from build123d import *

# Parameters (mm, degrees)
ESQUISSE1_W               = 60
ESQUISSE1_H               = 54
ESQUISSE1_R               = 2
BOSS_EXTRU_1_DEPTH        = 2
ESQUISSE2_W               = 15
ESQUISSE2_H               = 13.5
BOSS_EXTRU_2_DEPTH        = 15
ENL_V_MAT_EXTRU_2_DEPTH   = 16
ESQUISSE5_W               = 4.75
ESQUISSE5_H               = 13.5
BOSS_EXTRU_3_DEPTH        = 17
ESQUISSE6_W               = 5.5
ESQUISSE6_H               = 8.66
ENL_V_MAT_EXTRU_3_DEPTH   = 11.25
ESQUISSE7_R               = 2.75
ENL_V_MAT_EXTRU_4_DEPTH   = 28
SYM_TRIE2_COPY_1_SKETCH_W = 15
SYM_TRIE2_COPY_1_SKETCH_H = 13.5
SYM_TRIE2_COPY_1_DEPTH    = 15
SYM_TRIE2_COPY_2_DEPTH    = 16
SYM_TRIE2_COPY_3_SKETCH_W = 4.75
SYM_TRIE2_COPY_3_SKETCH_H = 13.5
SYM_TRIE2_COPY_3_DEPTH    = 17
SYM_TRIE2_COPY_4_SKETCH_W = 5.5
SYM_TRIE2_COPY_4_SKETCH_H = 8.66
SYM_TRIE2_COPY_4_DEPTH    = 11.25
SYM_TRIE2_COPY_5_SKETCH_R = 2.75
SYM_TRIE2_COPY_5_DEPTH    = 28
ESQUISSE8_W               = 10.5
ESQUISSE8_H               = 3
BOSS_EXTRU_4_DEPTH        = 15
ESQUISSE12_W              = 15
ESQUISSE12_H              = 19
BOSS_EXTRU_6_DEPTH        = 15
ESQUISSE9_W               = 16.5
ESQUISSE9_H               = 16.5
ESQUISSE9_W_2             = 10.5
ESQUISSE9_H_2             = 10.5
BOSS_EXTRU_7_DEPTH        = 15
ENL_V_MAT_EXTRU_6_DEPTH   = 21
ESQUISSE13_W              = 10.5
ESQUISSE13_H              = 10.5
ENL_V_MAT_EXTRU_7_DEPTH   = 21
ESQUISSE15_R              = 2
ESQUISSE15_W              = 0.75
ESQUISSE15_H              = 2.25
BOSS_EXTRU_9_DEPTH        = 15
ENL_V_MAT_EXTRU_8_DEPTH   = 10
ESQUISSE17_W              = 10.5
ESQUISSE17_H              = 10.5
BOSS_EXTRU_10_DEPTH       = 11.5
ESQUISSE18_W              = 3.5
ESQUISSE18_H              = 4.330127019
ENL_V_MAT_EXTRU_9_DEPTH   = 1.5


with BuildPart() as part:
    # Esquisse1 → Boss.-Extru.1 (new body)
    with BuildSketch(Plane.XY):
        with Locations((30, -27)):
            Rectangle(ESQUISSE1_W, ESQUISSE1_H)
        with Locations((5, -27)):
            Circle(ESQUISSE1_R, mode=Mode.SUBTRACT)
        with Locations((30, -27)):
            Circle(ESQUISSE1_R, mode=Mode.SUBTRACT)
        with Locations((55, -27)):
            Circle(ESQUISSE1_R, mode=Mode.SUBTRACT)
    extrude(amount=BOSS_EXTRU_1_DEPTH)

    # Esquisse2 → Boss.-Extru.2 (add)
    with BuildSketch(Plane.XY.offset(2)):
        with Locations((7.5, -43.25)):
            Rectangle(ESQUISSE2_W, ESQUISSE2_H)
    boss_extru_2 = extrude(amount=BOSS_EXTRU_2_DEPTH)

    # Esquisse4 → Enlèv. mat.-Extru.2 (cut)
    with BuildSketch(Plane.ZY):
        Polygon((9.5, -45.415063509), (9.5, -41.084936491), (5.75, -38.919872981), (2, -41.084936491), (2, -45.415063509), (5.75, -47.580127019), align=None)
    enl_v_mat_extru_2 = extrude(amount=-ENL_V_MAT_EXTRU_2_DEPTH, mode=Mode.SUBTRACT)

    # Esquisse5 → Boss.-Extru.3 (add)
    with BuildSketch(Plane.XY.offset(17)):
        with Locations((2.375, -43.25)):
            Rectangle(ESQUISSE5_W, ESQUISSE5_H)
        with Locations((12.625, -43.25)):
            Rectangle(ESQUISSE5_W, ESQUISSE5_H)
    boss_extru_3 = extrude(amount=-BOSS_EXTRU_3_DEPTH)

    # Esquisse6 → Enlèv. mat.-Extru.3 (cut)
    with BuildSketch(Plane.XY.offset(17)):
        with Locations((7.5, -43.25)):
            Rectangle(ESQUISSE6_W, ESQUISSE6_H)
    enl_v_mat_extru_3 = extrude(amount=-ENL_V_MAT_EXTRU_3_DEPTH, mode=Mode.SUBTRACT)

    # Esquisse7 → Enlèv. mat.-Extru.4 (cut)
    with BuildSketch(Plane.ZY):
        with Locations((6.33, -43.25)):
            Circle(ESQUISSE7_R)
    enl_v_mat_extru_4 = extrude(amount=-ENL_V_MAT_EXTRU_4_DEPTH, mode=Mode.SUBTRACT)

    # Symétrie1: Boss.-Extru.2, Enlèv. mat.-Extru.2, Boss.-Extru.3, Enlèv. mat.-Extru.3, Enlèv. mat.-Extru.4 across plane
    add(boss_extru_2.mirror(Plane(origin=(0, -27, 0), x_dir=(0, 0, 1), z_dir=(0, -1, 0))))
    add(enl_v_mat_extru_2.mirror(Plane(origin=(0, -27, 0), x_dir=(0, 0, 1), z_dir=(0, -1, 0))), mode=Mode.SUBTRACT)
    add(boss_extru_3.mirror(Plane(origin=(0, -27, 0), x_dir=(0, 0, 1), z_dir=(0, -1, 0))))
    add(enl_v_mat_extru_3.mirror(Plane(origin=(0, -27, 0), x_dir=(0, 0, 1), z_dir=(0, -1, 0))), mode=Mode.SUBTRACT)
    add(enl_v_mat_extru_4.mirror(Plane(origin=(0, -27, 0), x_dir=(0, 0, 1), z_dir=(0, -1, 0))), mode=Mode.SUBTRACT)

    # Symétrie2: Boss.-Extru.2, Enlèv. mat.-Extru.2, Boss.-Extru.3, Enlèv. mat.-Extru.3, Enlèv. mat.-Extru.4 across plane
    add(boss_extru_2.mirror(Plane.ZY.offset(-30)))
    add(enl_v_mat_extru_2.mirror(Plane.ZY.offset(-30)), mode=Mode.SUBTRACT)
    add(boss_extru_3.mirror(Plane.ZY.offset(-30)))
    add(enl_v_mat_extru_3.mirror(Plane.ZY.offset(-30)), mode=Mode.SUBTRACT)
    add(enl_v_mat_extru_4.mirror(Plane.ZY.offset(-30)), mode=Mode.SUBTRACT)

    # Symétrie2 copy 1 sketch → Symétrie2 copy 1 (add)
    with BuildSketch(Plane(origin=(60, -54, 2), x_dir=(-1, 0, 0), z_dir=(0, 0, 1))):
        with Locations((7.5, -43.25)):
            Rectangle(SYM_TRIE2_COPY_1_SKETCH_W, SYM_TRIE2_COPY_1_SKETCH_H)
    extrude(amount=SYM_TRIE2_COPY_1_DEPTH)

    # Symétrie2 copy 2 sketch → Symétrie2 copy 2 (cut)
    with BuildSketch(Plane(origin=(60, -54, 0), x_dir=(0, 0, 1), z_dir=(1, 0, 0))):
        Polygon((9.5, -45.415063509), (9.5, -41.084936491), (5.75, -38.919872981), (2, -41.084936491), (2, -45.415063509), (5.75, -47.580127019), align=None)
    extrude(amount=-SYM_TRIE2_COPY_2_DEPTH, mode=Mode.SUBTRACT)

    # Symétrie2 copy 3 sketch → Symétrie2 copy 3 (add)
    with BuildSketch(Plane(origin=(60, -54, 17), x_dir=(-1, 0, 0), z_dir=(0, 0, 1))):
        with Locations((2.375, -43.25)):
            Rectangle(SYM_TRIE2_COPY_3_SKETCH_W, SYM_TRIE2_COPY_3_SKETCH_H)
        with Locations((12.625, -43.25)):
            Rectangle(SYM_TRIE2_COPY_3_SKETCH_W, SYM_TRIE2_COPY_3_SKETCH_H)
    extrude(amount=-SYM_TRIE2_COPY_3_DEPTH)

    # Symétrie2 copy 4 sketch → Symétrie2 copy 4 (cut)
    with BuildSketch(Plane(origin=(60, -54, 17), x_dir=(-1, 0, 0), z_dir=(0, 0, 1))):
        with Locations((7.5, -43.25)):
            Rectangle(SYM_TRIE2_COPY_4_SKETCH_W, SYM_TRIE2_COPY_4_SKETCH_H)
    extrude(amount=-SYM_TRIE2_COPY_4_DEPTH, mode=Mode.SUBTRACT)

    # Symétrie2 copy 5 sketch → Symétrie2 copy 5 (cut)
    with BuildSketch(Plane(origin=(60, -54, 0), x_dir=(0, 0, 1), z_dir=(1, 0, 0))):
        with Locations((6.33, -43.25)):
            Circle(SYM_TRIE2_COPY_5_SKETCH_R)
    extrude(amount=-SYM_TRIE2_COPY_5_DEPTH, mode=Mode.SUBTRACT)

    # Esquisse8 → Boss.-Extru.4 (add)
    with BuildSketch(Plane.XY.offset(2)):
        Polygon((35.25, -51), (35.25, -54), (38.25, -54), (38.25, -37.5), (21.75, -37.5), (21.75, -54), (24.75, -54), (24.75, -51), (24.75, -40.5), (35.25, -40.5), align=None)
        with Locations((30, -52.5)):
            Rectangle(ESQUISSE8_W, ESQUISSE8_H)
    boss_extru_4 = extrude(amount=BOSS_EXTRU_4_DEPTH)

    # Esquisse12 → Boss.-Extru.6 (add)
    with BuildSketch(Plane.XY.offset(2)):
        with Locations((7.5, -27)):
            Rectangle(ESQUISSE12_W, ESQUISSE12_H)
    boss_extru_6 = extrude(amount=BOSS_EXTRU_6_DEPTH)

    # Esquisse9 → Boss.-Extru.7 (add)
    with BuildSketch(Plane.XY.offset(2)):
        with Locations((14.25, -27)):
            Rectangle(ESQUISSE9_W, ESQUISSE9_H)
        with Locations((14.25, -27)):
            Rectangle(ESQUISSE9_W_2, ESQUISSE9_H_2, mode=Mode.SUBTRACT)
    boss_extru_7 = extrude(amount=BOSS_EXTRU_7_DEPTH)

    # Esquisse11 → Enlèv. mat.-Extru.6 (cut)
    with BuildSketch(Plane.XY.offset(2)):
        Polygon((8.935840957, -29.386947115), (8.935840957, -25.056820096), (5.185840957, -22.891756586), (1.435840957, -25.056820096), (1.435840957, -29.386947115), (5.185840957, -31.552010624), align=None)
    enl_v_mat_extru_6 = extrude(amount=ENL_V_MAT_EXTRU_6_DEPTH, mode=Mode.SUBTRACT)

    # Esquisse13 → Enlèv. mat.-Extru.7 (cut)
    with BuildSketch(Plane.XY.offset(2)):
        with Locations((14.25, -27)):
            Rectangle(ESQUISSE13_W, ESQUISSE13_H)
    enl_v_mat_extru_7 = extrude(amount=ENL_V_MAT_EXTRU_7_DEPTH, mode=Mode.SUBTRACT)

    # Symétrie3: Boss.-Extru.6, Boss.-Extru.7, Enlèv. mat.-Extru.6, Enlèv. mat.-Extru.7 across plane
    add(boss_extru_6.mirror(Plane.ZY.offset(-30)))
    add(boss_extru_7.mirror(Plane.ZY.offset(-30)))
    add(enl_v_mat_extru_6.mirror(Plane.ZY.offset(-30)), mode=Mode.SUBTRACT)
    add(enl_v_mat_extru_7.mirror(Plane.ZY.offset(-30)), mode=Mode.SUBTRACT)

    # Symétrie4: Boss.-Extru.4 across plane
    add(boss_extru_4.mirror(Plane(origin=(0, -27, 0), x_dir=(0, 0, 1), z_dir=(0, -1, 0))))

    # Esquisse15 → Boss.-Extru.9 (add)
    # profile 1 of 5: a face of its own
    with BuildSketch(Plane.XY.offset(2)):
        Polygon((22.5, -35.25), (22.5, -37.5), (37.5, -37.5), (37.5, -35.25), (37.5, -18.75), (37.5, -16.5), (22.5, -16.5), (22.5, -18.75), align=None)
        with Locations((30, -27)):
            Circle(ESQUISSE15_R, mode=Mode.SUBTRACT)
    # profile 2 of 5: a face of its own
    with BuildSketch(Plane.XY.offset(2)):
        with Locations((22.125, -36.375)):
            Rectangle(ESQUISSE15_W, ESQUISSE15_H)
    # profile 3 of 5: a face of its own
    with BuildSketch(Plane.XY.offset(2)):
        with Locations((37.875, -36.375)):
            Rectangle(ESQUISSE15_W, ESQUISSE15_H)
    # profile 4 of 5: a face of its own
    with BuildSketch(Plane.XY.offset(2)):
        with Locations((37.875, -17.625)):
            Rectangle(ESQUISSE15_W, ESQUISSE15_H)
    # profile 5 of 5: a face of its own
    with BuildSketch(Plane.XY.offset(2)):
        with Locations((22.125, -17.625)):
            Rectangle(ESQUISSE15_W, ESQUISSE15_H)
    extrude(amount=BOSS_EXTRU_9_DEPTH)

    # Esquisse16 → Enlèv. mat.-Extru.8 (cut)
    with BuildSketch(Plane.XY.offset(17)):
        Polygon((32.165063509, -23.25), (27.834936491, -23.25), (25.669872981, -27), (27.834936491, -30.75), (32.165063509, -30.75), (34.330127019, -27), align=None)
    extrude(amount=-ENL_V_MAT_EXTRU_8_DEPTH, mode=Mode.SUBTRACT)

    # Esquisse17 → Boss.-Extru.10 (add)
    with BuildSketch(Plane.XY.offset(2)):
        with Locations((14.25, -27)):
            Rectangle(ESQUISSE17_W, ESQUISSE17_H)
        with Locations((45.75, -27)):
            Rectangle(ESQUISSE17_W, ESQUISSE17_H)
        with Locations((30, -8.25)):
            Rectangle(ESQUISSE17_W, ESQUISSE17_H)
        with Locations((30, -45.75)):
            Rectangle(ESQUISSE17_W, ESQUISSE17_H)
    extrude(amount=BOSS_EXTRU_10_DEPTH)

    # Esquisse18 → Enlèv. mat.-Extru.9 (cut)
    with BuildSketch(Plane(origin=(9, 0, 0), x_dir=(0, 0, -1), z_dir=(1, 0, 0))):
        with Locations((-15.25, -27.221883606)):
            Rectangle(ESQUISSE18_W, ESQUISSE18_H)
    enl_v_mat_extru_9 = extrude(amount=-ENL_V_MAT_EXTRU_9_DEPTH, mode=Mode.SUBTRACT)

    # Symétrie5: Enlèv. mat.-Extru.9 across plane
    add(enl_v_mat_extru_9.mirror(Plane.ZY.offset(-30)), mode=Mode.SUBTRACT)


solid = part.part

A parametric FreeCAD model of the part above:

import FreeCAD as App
import Part
import Sketcher
from FreeCAD import Vector
Q = App.Units.Quantity


def add_polygon(sketch, points):
    """Adds a closed chain of lines whose ends are joined by coincident constraints."""
    first, n = sketch.GeometryCount, len(points)
    for a, b in zip(points, points[1:] + points[:1]):
        sketch.addGeometry(Part.LineSegment(App.Vector(*a, 0), App.Vector(*b, 0)), False)
    for i in range(n):
        sketch.addConstraint(Sketcher.Constraint("Coincident", first + i, 2, first + (i + 1) % n, 1))

doc = App.newDocument("Part")
body = doc.addObject("PartDesign::Body", "Body")

sketch1 = doc.addObject("Sketcher::SketchObject", "Sketch")
body.addObject(sketch1)
sketch1.AttachmentSupport = (doc.XY_Plane, [""])
sketch1.MapMode = "FlatFace"
add_polygon(sketch1, [(0, 0), (0, -54), (60, -54), (60, 0)])
sketch1.addGeometry(Part.Circle(Vector(5, -27, 0), Vector(0, 0, 1), 2), False)
sketch1.addGeometry(Part.Circle(Vector(30, -27, 0), Vector(0, 0, 1), 2), False)
sketch1.addGeometry(Part.Circle(Vector(55, -27, 0), Vector(0, 0, 1), 2), False)
sketch1.addConstraint([
    Sketcher.Constraint("Vertical", 0),
    Sketcher.Constraint("Horizontal", 1),
    Sketcher.Constraint("Vertical", 2),
    Sketcher.Constraint("Horizontal", 3),
    Sketcher.Constraint("Coincident", 3, 2, -1, 1),
    Sketcher.Constraint("Equal", 4, 5),
    Sketcher.Constraint("Equal", 5, 6),
    Sketcher.Constraint("Horizontal", 4, 3, 5, 3),
    Sketcher.Constraint("Horizontal", 5, 3, 6, 3),
    Sketcher.Constraint("Diameter", 4, Q("4 mm")),
    Sketcher.Constraint("DistanceX", 1, 1, 1, 2, Q("60 mm")),
    Sketcher.Constraint("DistanceY", 0, 2, 0, 1, Q("54 mm")),
    Sketcher.Constraint("DistanceX", -1, 1, 4, 3, Q("5 mm")),
    Sketcher.Constraint("DistanceY", 4, 3, -1, 1, Q("27 mm")),
    Sketcher.Constraint("DistanceX", -1, 1, 5, 3, Q("30 mm")),
    Sketcher.Constraint("DistanceX", -1, 1, 6, 3, Q("55 mm")),
])
pad1 = doc.addObject("PartDesign::Pad", "Pad")
body.addObject(pad1)
pad1.Profile = sketch1
pad1.Length = 2

sketch2 = doc.addObject("Sketcher::SketchObject", "Sketch001")
body.addObject(sketch2)
sketch2.AttachmentSupport = (doc.XY_Plane, [""])
sketch2.MapMode = "FlatFace"
sketch2.AttachmentOffset = App.Placement(Vector(0, 0, 2), App.Rotation())
add_polygon(sketch2, [(0, -36.5), (0, -50), (15, -50), (15, -36.5)])
sketch2.addConstraint([
    Sketcher.Constraint("Vertical", 0),
    Sketcher.Constraint("Horizontal", 1),
    Sketcher.Constraint("Vertical", 2),
    Sketcher.Constraint("Horizontal", 3),
    Sketcher.Constraint("PointOnObject", 0, 2, -2),
    Sketcher.Constraint("DistanceX", 1, 1, 1, 2, Q("15 mm")),
    Sketcher.Constraint("DistanceY", 0, 2, 0, 1, Q("13.5 mm")),
    Sketcher.Constraint("DistanceY", 0, 2, -1, 1, Q("50 mm")),
])
pad2 = doc.addObject("PartDesign::Pad", "Pad001")
body.addObject(pad2)
pad2.Profile = sketch2
pad2.Length = 15

sketch3 = doc.addObject("Sketcher::SketchObject", "Sketch002")
body.addObject(sketch3)
sketch3.AttachmentSupport = (doc.YZ_Plane, [""])
sketch3.MapMode = "FlatFace"
add_polygon(sketch3, [(-45.415064, 9.5), (-41.084936, 9.5), (-38.919873, 5.75), (-41.084936, 2), (-45.415064, 2), (-47.580127, 5.75)])
sketch3.addConstraint([
    Sketcher.Constraint("Horizontal", 0),
    Sketcher.Constraint("Horizontal", 3),
    Sketcher.Constraint("Parallel", 1, 4),
    Sketcher.Constraint("Parallel", 2, 5),
    Sketcher.Constraint("Horizontal", 1, 2, 4, 2),
    Sketcher.Constraint("Vertical", 0, 2, 2, 2),
    Sketcher.Constraint("Vertical", 3, 2, 5, 2),
    Sketcher.Constraint("Angle", 1, Q("-60 deg")),
    Sketcher.Constraint("DistanceY", -1, 1, 2, 2, Q("2 mm")),
    Sketcher.Constraint("DistanceY", -1, 1, 0, 2, Q("9.5 mm")),
    Sketcher.Constraint("DistanceX", 0, 1, 0, 2, Q("4.330127 mm")),
    Sketcher.Constraint("DistanceX", 0, 2, -1, 1, Q("41.084936 mm")),
])
pocket1 = doc.addObject("PartDesign::Pocket", "Pocket")
body.addObject(pocket1)
pocket1.Profile = sketch3
pocket1.Length = 16
pocket1.Reversed = True

sketch4 = doc.addObject("Sketcher::SketchObject", "Sketch003")
body.addObject(sketch4)
sketch4.AttachmentSupport = (doc.XY_Plane, [""])
sketch4.MapMode = "FlatFace"
sketch4.AttachmentOffset = App.Placement(Vector(0, 0, 17), App.Rotation())
add_polygon(sketch4, [(0, -36.5), (0, -50), (4.75, -50), (4.75, -36.5)])
add_polygon(sketch4, [(10.25, -36.5), (10.25, -50), (15, -50), (15, -36.5)])
sketch4.addConstraint([
    Sketcher.Constraint("Vertical", 0),
    Sketcher.Constraint("Horizontal", 1),
    Sketcher.Constraint("Vertical", 2),
    Sketcher.Constraint("Horizontal", 3),
    Sketcher.Constraint("Vertical", 4),
    Sketcher.Constraint("Horizontal", 5),
    Sketcher.Constraint("Vertical", 6),
    Sketcher.Constraint("Horizontal", 7),
    Sketcher.Constraint("PointOnObject", 0, 2, -2),
    Sketcher.Constraint("Horizontal", 1, 2, 4, 2),
    Sketcher.Constraint("Horizontal", 3, 2, 6, 2),
    Sketcher.Constraint("Equal", 3, 5),
    Sketcher.Constraint("DistanceY", 0, 2, 0, 1, Q("13.5 mm")),
    Sketcher.Constraint("DistanceY", 0, 2, -1, 1, Q("50 mm")),
    Sketcher.Constraint("DistanceX", -1, 1, 5, 2, Q("15 mm")),
    Sketcher.Constraint("DistanceX", 1, 1, 1, 2, Q("4.75 mm")),
])
pad3 = doc.addObject("PartDesign::Pad", "Pad002")
body.addObject(pad3)
pad3.Profile = sketch4
pad3.Length = 17
pad3.Reversed = True

sketch5 = doc.addObject("Sketcher::SketchObject", "Sketch004")
body.addObject(sketch5)
sketch5.AttachmentSupport = (doc.XY_Plane, [""])
sketch5.MapMode = "FlatFace"
sketch5.AttachmentOffset = App.Placement(Vector(0, 0, 17), App.Rotation())
add_polygon(sketch5, [(4.75, -38.92), (4.75, -47.58), (10.25, -47.58), (10.25, -38.92)])
sketch5.addConstraint([
    Sketcher.Constraint("Vertical", 0),
    Sketcher.Constraint("Horizontal", 1),
    Sketcher.Constraint("Vertical", 2),
    Sketcher.Constraint("Horizontal", 3),
    Sketcher.Constraint("DistanceX", 1, 1, 1, 2, Q("5.5 mm")),
    Sketcher.Constraint("DistanceY", 0, 2, 0, 1, Q("8.66 mm")),
    Sketcher.Constraint("DistanceX", -1, 1, 0, 2, Q("4.75 mm")),
    Sketcher.Constraint("DistanceY", 0, 2, -1, 1, Q("47.58 mm")),
])
pocket2 = doc.addObject("PartDesign::Pocket", "Pocket001")
body.addObject(pocket2)
pocket2.Profile = sketch5
pocket2.Length = 11.25

sketch6 = doc.addObject("Sketcher::SketchObject", "Sketch005")
body.addObject(sketch6)
sketch6.AttachmentSupport = (doc.YZ_Plane, [""])
sketch6.MapMode = "FlatFace"
sketch6.addGeometry(Part.Circle(Vector(-43.25, 6.33, 0), Vector(0, 0, 1), 2.75), False)
sketch6.addConstraint([
    Sketcher.Constraint("Diameter", 0, Q("5.5 mm")),
    Sketcher.Constraint("DistanceX", 0, 3, -1, 1, Q("43.25 mm")),
    Sketcher.Constraint("DistanceY", -1, 1, 0, 3, Q("6.33 mm")),
])
pocket3 = doc.addObject("PartDesign::Pocket", "Pocket002")
body.addObject(pocket3)
pocket3.Profile = sketch6
pocket3.Length = 28
pocket3.Reversed = True
doc.recompute()

datumplane = doc.addObject("PartDesign::Plane", "DatumPlane")
body.addObject(datumplane)
datumplane.AttachmentSupport = (doc.XZ_Plane, [""])
datumplane.MapMode = "FlatFace"
datumplane.AttachmentOffset = App.Placement(Vector(0, 0, 27), App.Rotation())
mirrored = doc.addObject("PartDesign::Mirrored", "Mirrored")
body.addObject(mirrored)
mirrored.Originals = [pad2, pocket1, pad3, pocket2, pocket3]
mirrored.MirrorPlane = (datumplane, [""])
body.Tip = mirrored
doc.recompute()

datumplane2 = doc.addObject("PartDesign::Plane", "DatumPlane001")
body.addObject(datumplane2)
datumplane2.AttachmentSupport = (doc.YZ_Plane, [""])
datumplane2.MapMode = "FlatFace"
datumplane2.AttachmentOffset = App.Placement(Vector(0, 0, 30), App.Rotation())
mirrored2 = doc.addObject("PartDesign::Mirrored", "Mirrored001")
body.addObject(mirrored2)
mirrored2.Originals = [pad2, pocket1, pad3, pocket2, pocket3]
mirrored2.MirrorPlane = (datumplane2, [""])
body.Tip = mirrored2

sketch7 = doc.addObject("Sketcher::SketchObject", "Sketch006")
body.addObject(sketch7)
sketch7.AttachmentSupport = (doc.XY_Plane, [""])
sketch7.MapMode = "FlatFace"
sketch7.AttachmentOffset = App.Placement(Vector(0, 0, 2), App.Rotation())
add_polygon(sketch7, [(60, -17.5), (60, -4), (45, -4), (45, -17.5)])
sketch7.addConstraint([
    Sketcher.Constraint("Vertical", 0),
    Sketcher.Constraint("Horizontal", 1),
    Sketcher.Constraint("Vertical", 2),
    Sketcher.Constraint("Horizontal", 3),
    Sketcher.Constraint("DistanceX", 1, 2, 1, 1, Q("15 mm")),
    Sketcher.Constraint("DistanceY", 0, 1, 0, 2, Q("13.5 mm")),
    Sketcher.Constraint("DistanceX", -1, 1, 0, 2, Q("60 mm")),
    Sketcher.Constraint("DistanceY", 0, 2, -1, 1, Q("4 mm")),
])
pad4 = doc.addObject("PartDesign::Pad", "Pad003")
body.addObject(pad4)
pad4.Profile = sketch7
pad4.Length = 15

sketch8 = doc.addObject("Sketcher::SketchObject", "Sketch007")
body.addObject(sketch8)
sketch8.AttachmentSupport = (doc.YZ_Plane, [""])
sketch8.MapMode = "FlatFace"
sketch8.AttachmentOffset = App.Placement(Vector(0, 0, 60), App.Rotation())
add_polygon(sketch8, [(-8.584936, 9.5), (-12.915064, 9.5), (-15.080127, 5.75), (-12.915064, 2), (-8.584936, 2), (-6.419873, 5.75)])
sketch8.addConstraint([
    Sketcher.Constraint("Horizontal", 0),
    Sketcher.Constraint("Horizontal", 3),
    Sketcher.Constraint("Parallel", 1, 4),
    Sketcher.Constraint("Parallel", 2, 5),
    Sketcher.Constraint("Horizontal", 1, 2, 4, 2),
    Sketcher.Constraint("Vertical", 0, 2, 2, 2),
    Sketcher.Constraint("Vertical", 3, 2, 5, 2),
    Sketcher.Constraint("Angle", 1, Q("-120 deg")),
    Sketcher.Constraint("DistanceY", -1, 1, 2, 2, Q("2 mm")),
    Sketcher.Constraint("DistanceY", -1, 1, 0, 2, Q("9.5 mm")),
    Sketcher.Constraint("DistanceX", 0, 2, 0, 1, Q("4.330127 mm")),
    Sketcher.Constraint("DistanceX", 0, 2, -1, 1, Q("12.915064 mm")),
])
pocket4 = doc.addObject("PartDesign::Pocket", "Pocket003")
body.addObject(pocket4)
pocket4.Profile = sketch8
pocket4.Length = 16

sketch9 = doc.addObject("Sketcher::SketchObject", "Sketch008")
body.addObject(sketch9)
sketch9.AttachmentSupport = (doc.XY_Plane, [""])
sketch9.MapMode = "FlatFace"
sketch9.AttachmentOffset = App.Placement(Vector(0, 0, 17), App.Rotation())
add_polygon(sketch9, [(60, -17.5), (60, -4), (55.25, -4), (55.25, -17.5)])
add_polygon(sketch9, [(49.75, -17.5), (49.75, -4), (45, -4), (45, -17.5)])
sketch9.addConstraint([
    Sketcher.Constraint("Vertical", 0),
    Sketcher.Constraint("Horizontal", 1),
    Sketcher.Constraint("Vertical", 2),
    Sketcher.Constraint("Horizontal", 3),
    Sketcher.Constraint("Vertical", 4),
    Sketcher.Constraint("Horizontal", 5),
    Sketcher.Constraint("Vertical", 6),
    Sketcher.Constraint("Horizontal", 7),
    Sketcher.Constraint("Horizontal", 1, 2, 4, 2),
    Sketcher.Constraint("Horizontal", 3, 2, 6, 2),
    Sketcher.Constraint("Equal", 3, 5),
    Sketcher.Constraint("DistanceY", 0, 1, 0, 2, Q("13.5 mm")),
    Sketcher.Constraint("DistanceX", -1, 1, 0, 2, Q("60 mm")),
    Sketcher.Constraint("DistanceY", 0, 2, -1, 1, Q("4 mm")),
    Sketcher.Constraint("DistanceX", -1, 1, 5, 2, Q("45 mm")),
    Sketcher.Constraint("DistanceX", 1, 2, 1, 1, Q("4.75 mm")),
])
pad5 = doc.addObject("PartDesign::Pad", "Pad004")
body.addObject(pad5)
pad5.Profile = sketch9
pad5.Length = 17
pad5.Reversed = True

sketch10 = doc.addObject("Sketcher::SketchObject", "Sketch009")
body.addObject(sketch10)
sketch10.AttachmentSupport = (doc.XY_Plane, [""])
sketch10.MapMode = "FlatFace"
sketch10.AttachmentOffset = App.Placement(Vector(0, 0, 17), App.Rotation())
add_polygon(sketch10, [(55.25, -15.08), (55.25, -6.42), (49.75, -6.42), (49.75, -15.08)])
sketch10.addConstraint([
    Sketcher.Constraint("Vertical", 0),
    Sketcher.Constraint("Horizontal", 1),
    Sketcher.Constraint("Vertical", 2),
    Sketcher.Constraint("Horizontal", 3),
    Sketcher.Constraint("DistanceX", 1, 2, 1, 1, Q("5.5 mm")),
    Sketcher.Constraint("DistanceY", 0, 1, 0, 2, Q("8.66 mm")),
    Sketcher.Constraint("DistanceX", -1, 1, 0, 2, Q("55.25 mm")),
    Sketcher.Constraint("DistanceY", 0, 2, -1, 1, Q("6.42 mm")),
])
pocket5 = doc.addObject("PartDesign::Pocket", "Pocket004")
body.addObject(pocket5)
pocket5.Profile = sketch10
pocket5.Length = 11.25

sketch11 = doc.addObject("Sketcher::SketchObject", "Sketch010")
body.addObject(sketch11)
sketch11.AttachmentSupport = (doc.YZ_Plane, [""])
sketch11.MapMode = "FlatFace"
sketch11.AttachmentOffset = App.Placement(Vector(0, 0, 60), App.Rotation())
sketch11.addGeometry(Part.Circle(Vector(-10.75, 6.33, 0), Vector(0, 0, 1), 2.75), False)
sketch11.addConstraint([
    Sketcher.Constraint("Diameter", 0, Q("5.5 mm")),
    Sketcher.Constraint("DistanceX", 0, 3, -1, 1, Q("10.75 mm")),
    Sketcher.Constraint("DistanceY", -1, 1, 0, 3, Q("6.33 mm")),
])
pocket6 = doc.addObject("PartDesign::Pocket", "Pocket005")
body.addObject(pocket6)
pocket6.Profile = sketch11
pocket6.Length = 28

sketch12 = doc.addObject("Sketcher::SketchObject", "Sketch011")
body.addObject(sketch12)
sketch12.AttachmentSupport = (doc.XY_Plane, [""])
sketch12.MapMode = "FlatFace"
sketch12.AttachmentOffset = App.Placement(Vector(0, 0, 2), App.Rotation())
add_polygon(sketch12, [(38.25, -54), (38.25, -37.5), (21.75, -37.5), (21.75, -54)])
add_polygon(sketch12, [(24.75, -51), (24.75, -40.5), (35.25, -40.5), (35.25, -51)])
sketch12.addConstraint([
    Sketcher.Constraint("Vertical", 0),
    Sketcher.Constraint("Horizontal", 1),
    Sketcher.Constraint("Vertical", 2),
    Sketcher.Constraint("Horizontal", 3),
    Sketcher.Constraint("Vertical", 4),
    Sketcher.Constraint("Horizontal", 5),
    Sketcher.Constraint("Vertical", 6),
    Sketcher.Constraint("Horizontal", 7),
    Sketcher.Constraint("Equal", 3, 0),
    Sketcher.Constraint("Equal", 7, 4),
    Sketcher.Constraint("DistanceX", 1, 2, 1, 1, Q("16.5 mm")),
    Sketcher.Constraint("DistanceX", 5, 1, 5, 2, Q("10.5 mm")),
    Sketcher.Constraint("DistanceY", 2, 2, -1, 1, Q("54 mm")),
    Sketcher.Constraint("DistanceY", 6, 2, -1, 1, Q("51 mm")),
    Sketcher.Constraint("DistanceX", 1, 2, 4, 2, Q("3 mm")),
    Sketcher.Constraint("DistanceX", -1, 1, 0, 2, Q("38.25 mm")),
])
pad6 = doc.addObject("PartDesign::Pad", "Pad005")
body.addObject(pad6)
pad6.Profile = sketch12
pad6.Length = 15

sketch13 = doc.addObject("Sketcher::SketchObject", "Sketch012")
body.addObject(sketch13)
sketch13.AttachmentSupport = (doc.XY_Plane, [""])
sketch13.MapMode = "FlatFace"
sketch13.AttachmentOffset = App.Placement(Vector(0, 0, 2), App.Rotation())
add_polygon(sketch13, [(0, -17.5), (0, -36.5), (15, -36.5), (15, -17.5)])
sketch13.addConstraint([
    Sketcher.Constraint("Vertical", 0),
    Sketcher.Constraint("Horizontal", 1),
    Sketcher.Constraint("Vertical", 2),
    Sketcher.Constraint("Horizontal", 3),
    Sketcher.Constraint("PointOnObject", 0, 2, -2),
    Sketcher.Constraint("DistanceX", 1, 1, 1, 2, Q("15 mm")),
    Sketcher.Constraint("DistanceY", 0, 2, 0, 1, Q("19 mm")),
    Sketcher.Constraint("DistanceY", 0, 2, -1, 1, Q("36.5 mm")),
])
pad7 = doc.addObject("PartDesign::Pad", "Pad006")
body.addObject(pad7)
pad7.Profile = sketch13
pad7.Length = 15

sketch14 = doc.addObject("Sketcher::SketchObject", "Sketch013")
body.addObject(sketch14)
sketch14.AttachmentSupport = (doc.XY_Plane, [""])
sketch14.MapMode = "FlatFace"
sketch14.AttachmentOffset = App.Placement(Vector(0, 0, 2), App.Rotation())
add_polygon(sketch14, [(6, -18.75), (6, -35.25), (22.5, -35.25), (22.5, -18.75)])
add_polygon(sketch14, [(19.5, -32.25), (9, -32.25), (9, -21.75), (19.5, -21.75)])
sketch14.addConstraint([
    Sketcher.Constraint("Vertical", 0),
    Sketcher.Constraint("Horizontal", 1),
    Sketcher.Constraint("Vertical", 2),
    Sketcher.Constraint("Horizontal", 3),
    Sketcher.Constraint("Horizontal", 4),
    Sketcher.Constraint("Vertical", 5),
    Sketcher.Constraint("Horizontal", 6),
    Sketcher.Constraint("Vertical", 7),
    Sketcher.Constraint("Equal", 3, 0),
    Sketcher.Constraint("Equal", 6, 5),
    Sketcher.Constraint("DistanceX", 1, 1, 1, 2, Q("16.5 mm")),
    Sketcher.Constraint("DistanceX", 4, 2, 4, 1, Q("10.5 mm")),
    Sketcher.Constraint("DistanceX", -1, 1, 0, 2, Q("6 mm")),
    Sketcher.Constraint("DistanceX", -1, 1, 4, 2, Q("9 mm")),
    Sketcher.Constraint("DistanceY", 0, 2, 4, 2, Q("3 mm")),
    Sketcher.Constraint("DistanceY", 0, 2, -1, 1, Q("35.25 mm")),
])
pad8 = doc.addObject("PartDesign::Pad", "Pad007")
body.addObject(pad8)
pad8.Profile = sketch14
pad8.Length = 15

sketch15 = doc.addObject("Sketcher::SketchObject", "Sketch014")
body.addObject(sketch15)
sketch15.AttachmentSupport = (doc.XY_Plane, [""])
sketch15.MapMode = "FlatFace"
sketch15.AttachmentOffset = App.Placement(Vector(0, 0, 2), App.Rotation())
add_polygon(sketch15, [(8.935841, -29.386947), (8.935841, -25.05682), (5.185841, -22.891757), (1.435841, -25.05682), (1.435841, -29.386947), (5.185841, -31.552011)])
sketch15.addConstraint([
    Sketcher.Constraint("Vertical", 0),
    Sketcher.Constraint("Vertical", 3),
    Sketcher.Constraint("Parallel", 1, 4),
    Sketcher.Constraint("Parallel", 2, 5),
    Sketcher.Constraint("Horizontal", 0, 2, 2, 2),
    Sketcher.Constraint("Horizontal", 3, 2, 5, 2),
    Sketcher.Constraint("Vertical", 1, 2, 4, 2),
    Sketcher.Constraint("Angle", 1, Q("150 deg")),
    Sketcher.Constraint("DistanceX", 2, 2, 0, 2, Q("7.5 mm")),
    Sketcher.Constraint("DistanceY", 0, 1, 0, 2, Q("4.330127 mm")),
    Sketcher.Constraint("DistanceX", -1, 1, 0, 2, Q("8.935841 mm")),
    Sketcher.Constraint("DistanceY", 0, 2, -1, 1, Q("25.05682 mm")),
])
pocket7 = doc.addObject("PartDesign::Pocket", "Pocket006")
body.addObject(pocket7)
pocket7.Profile = sketch15
pocket7.Length = 21
pocket7.Reversed = True

sketch16 = doc.addObject("Sketcher::SketchObject", "Sketch015")
body.addObject(sketch16)
sketch16.AttachmentSupport = (doc.XY_Plane, [""])
sketch16.MapMode = "FlatFace"
sketch16.AttachmentOffset = App.Placement(Vector(0, 0, 2), App.Rotation())
add_polygon(sketch16, [(9, -21.75), (9, -32.25), (19.5, -32.25), (19.5, -21.75)])
sketch16.addConstraint([
    Sketcher.Constraint("Vertical", 0),
    Sketcher.Constraint("Horizontal", 1),
    Sketcher.Constraint("Vertical", 2),
    Sketcher.Constraint("Horizontal", 3),
    Sketcher.Constraint("Equal", 3, 0),
    Sketcher.Constraint("DistanceX", 1, 1, 1, 2, Q("10.5 mm")),
    Sketcher.Constraint("DistanceX", -1, 1, 0, 2, Q("9 mm")),
    Sketcher.Constraint("DistanceY", 0, 2, -1, 1, Q("32.25 mm")),
])
pocket8 = doc.addObject("PartDesign::Pocket", "Pocket007")
body.addObject(pocket8)
pocket8.Profile = sketch16
pocket8.Length = 21
pocket8.Reversed = True
doc.recompute()

datumplane3 = doc.addObject("PartDesign::Plane", "DatumPlane002")
body.addObject(datumplane3)
datumplane3.AttachmentSupport = (doc.YZ_Plane, [""])
datumplane3.MapMode = "FlatFace"
datumplane3.AttachmentOffset = App.Placement(Vector(0, 0, 30), App.Rotation())
mirrored3 = doc.addObject("PartDesign::Mirrored", "Mirrored002")
body.addObject(mirrored3)
mirrored3.Originals = [pad7, pad8, pocket7, pocket8]
mirrored3.MirrorPlane = (datumplane3, [""])
body.Tip = mirrored3
doc.recompute()

datumplane4 = doc.addObject("PartDesign::Plane", "DatumPlane003")
body.addObject(datumplane4)
datumplane4.AttachmentSupport = (doc.XZ_Plane, [""])
datumplane4.MapMode = "FlatFace"
datumplane4.AttachmentOffset = App.Placement(Vector(0, 0, 27), App.Rotation())
mirrored4 = doc.addObject("PartDesign::Mirrored", "Mirrored003")
body.addObject(mirrored4)
mirrored4.Originals = [pad6]
mirrored4.MirrorPlane = (datumplane4, [""])
body.Tip = mirrored4

sketch17 = doc.addObject("Sketcher::SketchObject", "Sketch016")
body.addObject(sketch17)
sketch17.AttachmentSupport = (doc.XY_Plane, [""])
sketch17.MapMode = "FlatFace"
sketch17.AttachmentOffset = App.Placement(Vector(0, 0, 2), App.Rotation())
add_polygon(sketch17, [(38.25, -37.5), (38.25, -35.25), (37.5, -35.25), (37.5, -18.75), (38.25, -18.75), (38.25, -16.5), (21.75, -16.5), (21.75, -18.75), (22.5, -18.75), (22.5, -35.25), (21.75, -35.25), (21.75, -37.5)])
sketch17.addGeometry(Part.Circle(Vector(30, -27, 0), Vector(0, 0, 1), 2), False)
sketch17.addConstraint([
    Sketcher.Constraint("Vertical", 0),
    Sketcher.Constraint("Horizontal", 1),
    Sketcher.Constraint("Vertical", 2),
    Sketcher.Constraint("Horizontal", 3),
    Sketcher.Constraint("Vertical", 4),
    Sketcher.Constraint("Horizontal", 5),
    Sketcher.Constraint("Vertical", 6),
    Sketcher.Constraint("Horizontal", 7),
    Sketcher.Constraint("Vertical", 8),
    Sketcher.Constraint("Horizontal", 9),
    Sketcher.Constraint("Vertical", 10),
    Sketcher.Constraint("Horizontal", 11),
    Sketcher.Constraint("Horizontal", 3, 2, 6, 2),
    Sketcher.Constraint("Horizontal", 1, 2, 8, 2),
    Sketcher.Constraint("Vertical", 0, 2, 3, 2),
    Sketcher.Constraint("Vertical", 6, 2, 9, 2),
    Sketcher.Constraint("Equal", 3, 7),
    Sketcher.Constraint("Equal", 11, 2),
    Sketcher.Constraint("Equal", 0, 4),
    Sketcher.Constraint("Diameter", 12, Q("4 mm")),
    Sketcher.Constraint("DistanceX", 5, 2, 5, 1, Q("16.5 mm")),
    Sketcher.Constraint("DistanceX", -1, 1, 12, 3, Q("30 mm")),
    Sketcher.Constraint("DistanceY", 12, 3, -1, 1, Q("27 mm")),
    Sketcher.Constraint("DistanceX", 7, 2, 2, 2, Q("15 mm")),
    Sketcher.Constraint("DistanceY", 0, 1, 0, 2, Q("2.25 mm")),
    Sketcher.Constraint("DistanceX", -1, 1, 1, 2, Q("37.5 mm")),
    Sketcher.Constraint("DistanceY", 4, 2, -1, 1, Q("16.5 mm")),
])
pad9 = doc.addObject("PartDesign::Pad", "Pad008")
body.addObject(pad9)
pad9.Profile = sketch17
pad9.Length = 15

sketch18 = doc.addObject("Sketcher::SketchObject", "Sketch017")
body.addObject(sketch18)
sketch18.AttachmentSupport = (doc.XY_Plane, [""])
sketch18.MapMode = "FlatFace"
sketch18.AttachmentOffset = App.Placement(Vector(0, 0, 17), App.Rotation())
add_polygon(sketch18, [(32.165064, -23.25), (27.834936, -23.25), (25.669873, -27), (27.834936, -30.75), (32.165064, -30.75), (34.330127, -27)])
sketch18.addConstraint([
    Sketcher.Constraint("Horizontal", 0),
    Sketcher.Constraint("Horizontal", 3),
    Sketcher.Constraint("Parallel", 1, 4),
    Sketcher.Constraint("Parallel", 2, 5),
    Sketcher.Constraint("Horizontal", 1, 2, 4, 2),
    Sketcher.Constraint("Vertical", 0, 2, 2, 2),
    Sketcher.Constraint("Vertical", 3, 2, 5, 2),
    Sketcher.Constraint("Angle", 1, Q("-120 deg")),
    Sketcher.Constraint("DistanceY", 1, 2, -1, 1, Q("27 mm")),
    Sketcher.Constraint("DistanceY", 2, 2, 0, 2, Q("7.5 mm")),
    Sketcher.Constraint("DistanceX", 0, 2, 0, 1, Q("4.330127 mm")),
    Sketcher.Constraint("DistanceX", -1, 1, 0, 2, Q("27.834936 mm")),
])
pocket9 = doc.addObject("PartDesign::Pocket", "Pocket008")
body.addObject(pocket9)
pocket9.Profile = sketch18
pocket9.Length = 10

sketch19 = doc.addObject("Sketcher::SketchObject", "Sketch018")
body.addObject(sketch19)
sketch19.AttachmentSupport = (doc.XY_Plane, [""])
sketch19.MapMode = "FlatFace"
sketch19.AttachmentOffset = App.Placement(Vector(0, 0, 2), App.Rotation())
add_polygon(sketch19, [(9, -21.75), (9, -32.25), (19.5, -32.25), (19.5, -21.75)])
add_polygon(sketch19, [(40.5, -21.75), (40.5, -32.25), (51, -32.25), (51, -21.75)])
add_polygon(sketch19, [(24.75, -3), (24.75, -13.5), (35.25, -13.5), (35.25, -3)])
add_polygon(sketch19, [(24.75, -40.5), (24.75, -51), (35.25, -51), (35.25, -40.5)])
sketch19.addConstraint([
    Sketcher.Constraint("Vertical", 0),
    Sketcher.Constraint("Horizontal", 1),
    Sketcher.Constraint("Vertical", 2),
    Sketcher.Constraint("Horizontal", 3),
    Sketcher.Constraint("Vertical", 4),
    Sketcher.Constraint("Horizontal", 5),
    Sketcher.Constraint("Vertical", 6),
    Sketcher.Constraint("Horizontal", 7),
    Sketcher.Constraint("Vertical", 8),
    Sketcher.Constraint("Horizontal", 9),
    Sketcher.Constraint("Vertical", 10),
    Sketcher.Constraint("Horizontal", 11),
    Sketcher.Constraint("Vertical", 12),
    Sketcher.Constraint("Horizontal", 13),
    Sketcher.Constraint("Vertical", 14),
    Sketcher.Constraint("Horizontal", 15),
    Sketcher.Constraint("Horizontal", 1, 2, 4, 2),
    Sketcher.Constraint("Horizontal", 3, 2, 6, 2),
    Sketcher.Constraint("Vertical", 11, 2, 12, 2),
    Sketcher.Constraint("Vertical", 10, 2, 13, 2),
    Sketcher.Constraint("Equal", 3, 5),
    Sketcher.Constraint("Equal", 7, 9),
    Sketcher.Constraint("Equal", 15, 0),
    Sketcher.Constraint("Equal", 6, 8),
    Sketcher.Constraint("Equal", 10, 12),
    Sketcher.Constraint("DistanceX", 1, 1, 1, 2, Q("10.5 mm")),
    Sketcher.Constraint("DistanceX", -1, 1, 0, 2, Q("9 mm")),
    Sketcher.Constraint("DistanceX", -1, 1, 5, 2, Q("51 mm")),
    Sketcher.Constraint("DistanceY", 10, 2, -1, 1, Q("3 mm")),
    Sketcher.Constraint("DistanceY", 12, 2, -1, 1, Q("51 mm")),
    Sketcher.Constraint("DistanceY", 0, 2, -1, 1, Q("32.25 mm")),
    Sketcher.Constraint("DistanceX", -1, 1, 8, 2, Q("24.75 mm")),
])
pad10 = doc.addObject("PartDesign::Pad", "Pad009")
body.addObject(pad10)
pad10.Profile = sketch19
pad10.Length = 11.5

sketch20 = doc.addObject("Sketcher::SketchObject", "Sketch019")
body.addObject(sketch20)
sketch20.AttachmentSupport = (doc.YZ_Plane, [""])
sketch20.MapMode = "FlatFace"
sketch20.AttachmentOffset = App.Placement(Vector(0, 0, 9), App.Rotation())
add_polygon(sketch20, [(-25.05682, 17), (-29.386947, 17), (-29.386947, 13.5), (-25.05682, 13.5)])
sketch20.addConstraint([
    Sketcher.Constraint("Horizontal", 0),
    Sketcher.Constraint("Vertical", 1),
    Sketcher.Constraint("Horizontal", 2),
    Sketcher.Constraint("Vertical", 3),
    Sketcher.Constraint("DistanceY", 1, 2, 1, 1, Q("3.5 mm")),
    Sketcher.Constraint("DistanceY", -1, 1, 0, 2, Q("17 mm")),
    Sketcher.Constraint("DistanceX", 0, 2, 0, 1, Q("4.330127 mm")),
    Sketcher.Constraint("DistanceX", 2, 2, -1, 1, Q("25.05682 mm")),
])
pocket10 = doc.addObject("PartDesign::Pocket", "Pocket009")
body.addObject(pocket10)
pocket10.Profile = sketch20
pocket10.Length = 1.5
doc.recompute()

datumplane5 = doc.addObject("PartDesign::Plane", "DatumPlane004")
body.addObject(datumplane5)
datumplane5.AttachmentSupport = (doc.YZ_Plane, [""])
datumplane5.MapMode = "FlatFace"
datumplane5.AttachmentOffset = App.Placement(Vector(0, 0, 30), App.Rotation())
mirrored5 = doc.addObject("PartDesign::Mirrored", "Mirrored004")
body.addObject(mirrored5)
mirrored5.Originals = [pocket10]
mirrored5.MirrorPlane = (datumplane5, [""])
body.Tip = mirrored5

doc.recompute()
